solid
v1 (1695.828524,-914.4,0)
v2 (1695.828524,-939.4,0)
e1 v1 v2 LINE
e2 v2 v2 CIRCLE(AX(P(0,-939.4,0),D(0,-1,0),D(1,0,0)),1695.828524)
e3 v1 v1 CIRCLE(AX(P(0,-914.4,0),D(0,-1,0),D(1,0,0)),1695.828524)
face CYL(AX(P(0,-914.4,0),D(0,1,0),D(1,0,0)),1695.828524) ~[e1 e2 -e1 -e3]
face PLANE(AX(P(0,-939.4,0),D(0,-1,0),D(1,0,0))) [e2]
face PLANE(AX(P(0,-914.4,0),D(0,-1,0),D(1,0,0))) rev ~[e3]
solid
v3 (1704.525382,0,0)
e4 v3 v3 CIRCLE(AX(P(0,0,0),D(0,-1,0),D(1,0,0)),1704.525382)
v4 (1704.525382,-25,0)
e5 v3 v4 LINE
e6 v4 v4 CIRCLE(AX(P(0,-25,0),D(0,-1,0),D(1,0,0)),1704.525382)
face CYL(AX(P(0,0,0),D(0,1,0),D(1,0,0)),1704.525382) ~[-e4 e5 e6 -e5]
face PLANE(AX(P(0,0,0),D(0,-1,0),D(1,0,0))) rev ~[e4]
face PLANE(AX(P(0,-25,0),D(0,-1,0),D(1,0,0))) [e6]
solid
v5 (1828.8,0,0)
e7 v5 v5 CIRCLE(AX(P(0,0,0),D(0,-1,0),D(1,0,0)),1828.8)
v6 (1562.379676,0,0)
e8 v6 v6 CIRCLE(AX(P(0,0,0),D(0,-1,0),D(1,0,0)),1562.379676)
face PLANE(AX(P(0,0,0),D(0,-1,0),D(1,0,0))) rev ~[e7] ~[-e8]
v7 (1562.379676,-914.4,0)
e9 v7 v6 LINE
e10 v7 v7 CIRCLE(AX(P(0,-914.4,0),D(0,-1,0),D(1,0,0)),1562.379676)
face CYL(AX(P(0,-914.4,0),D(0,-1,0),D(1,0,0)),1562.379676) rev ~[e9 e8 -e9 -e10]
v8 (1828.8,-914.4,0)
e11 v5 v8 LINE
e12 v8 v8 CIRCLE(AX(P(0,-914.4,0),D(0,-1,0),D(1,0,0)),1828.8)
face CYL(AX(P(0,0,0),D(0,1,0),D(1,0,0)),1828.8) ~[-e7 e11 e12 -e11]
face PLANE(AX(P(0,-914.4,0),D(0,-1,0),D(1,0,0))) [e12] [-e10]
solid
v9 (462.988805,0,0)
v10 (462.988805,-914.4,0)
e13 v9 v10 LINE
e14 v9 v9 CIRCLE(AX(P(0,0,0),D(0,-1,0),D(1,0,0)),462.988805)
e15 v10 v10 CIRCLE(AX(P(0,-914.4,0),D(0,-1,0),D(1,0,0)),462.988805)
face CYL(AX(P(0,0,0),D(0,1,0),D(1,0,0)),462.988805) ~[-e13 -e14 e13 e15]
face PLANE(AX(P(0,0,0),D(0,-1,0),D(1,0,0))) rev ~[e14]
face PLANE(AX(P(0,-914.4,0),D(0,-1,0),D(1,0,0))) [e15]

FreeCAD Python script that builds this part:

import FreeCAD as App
import Part
import Sketcher
Q = App.Units.Quantity

doc = App.newDocument("Part")
body = doc.addObject("PartDesign::Body", "Body")

# Sketch on XZ plane
sketch1 = body.newObject("Sketcher::SketchObject", "Sketch")
sketch1.AttachmentSupport = (doc.getObject("XZ_Plane"), [""])
sketch1.MapMode = "FlatFace"
sketch1.addGeometry(Part.Circle(App.Vector(0, 0, 0), App.Vector(0, 0, 1), 1829), False)
sketch1.addConstraint(Sketcher.Constraint("Coincident", 0, 3, -1, 1))
sketch1.addConstraint(Sketcher.Constraint("Diameter", 0, Q("144 in")))
pad1 = body.newObject("PartDesign::Pad", "Pad")
pad1.Profile = sketch1
pad1.Length = Q("36 in")

# Sketch on XZ plane
sketch2 = body.newObject("Sketcher::SketchObject", "Sketch001")
sketch2.AttachmentSupport = (doc.getObject("XZ_Plane"), [""])
sketch2.MapMode = "FlatFace"
sketch2.AttachmentOffset = App.Placement(App.Vector(0, 0, 36 * 25.4), App.Rotation())
sketch2.addGeometry(Part.Circle(App.Vector(0, 0, 0), App.Vector(0, 0, 1), 1562), False)
sketch2.addConstraint(Sketcher.Constraint("Coincident", 0, 3, -1, 1))
sketch2.addConstraint(Sketcher.Constraint("Diameter", 0, 3124.759352))
pocket1 = body.newObject("PartDesign::Pocket", "Pocket")
pocket1.Profile = sketch2
pocket1.Type = "ThroughAll"
body2 = doc.addObject("PartDesign::Body", "Body001")

# Sketch on XZ plane
sketch3 = body2.newObject("Sketcher::SketchObject", "Sketch002")
sketch3.AttachmentSupport = (doc.getObject("XZ_Plane001"), [""])
sketch3.MapMode = "FlatFace"
sketch3.addGeometry(Part.Circle(App.Vector(0, 0, 0), App.Vector(0, 0, 1), 463), False)
sketch3.addConstraint(Sketcher.Constraint("Coincident", 0, 3, -1, 1))
sketch3.addConstraint(Sketcher.Constraint("Diameter", 0, 925.97761))
pad2 = body2.newObject("PartDesign::Pad", "Pad001")
pad2.Profile = sketch3
pad2.Length = Q("36 in")
body3 = doc.addObject("PartDesign::Body", "Body002")

# Sketch on XZ plane
sketch4 = body3.newObject("Sketcher::SketchObject", "Sketch003")
sketch4.AttachmentSupport = (doc.getObject("XZ_Plane002"), [""])
sketch4.MapMode = "FlatFace"
sketch4.AttachmentOffset = App.Placement(App.Vector(0, 0, 36 * 25.4), App.Rotation())
sketch4.addGeometry(Part.Circle(App.Vector(0, 0, 0), App.Vector(0, 0, 1), 1696), False)
sketch4.addConstraint(Sketcher.Constraint("Coincident", 0, 3, -1, 1))
sketch4.addConstraint(Sketcher.Constraint("Diameter", 0, 3391.657048))
pad3 = body3.newObject("PartDesign::Pad", "Pad002")
pad3.Profile = sketch4
pad3.Length = 25
body4 = doc.addObject("PartDesign::Body", "Body003")

# Sketch on XZ plane
sketch5 = body4.newObject("Sketcher::SketchObject", "Sketch004")
sketch5.AttachmentSupport = (doc.getObject("XZ_Plane003"), [""])
sketch5.MapMode = "FlatFace"
sketch5.addGeometry(Part.Circle(App.Vector(0, 0, 0), App.Vector(0, 0, 1), 1705), False)
sketch5.addConstraint(Sketcher.Constraint("Coincident", 0, 3, -1, 1))
sketch5.addConstraint(Sketcher.Constraint("Diameter", 0, 3409.050764))
pad4 = body4.newObject("PartDesign::Pad", "Pad003")
pad4.Profile = sketch5
pad4.Length = 25

doc.recompute()
